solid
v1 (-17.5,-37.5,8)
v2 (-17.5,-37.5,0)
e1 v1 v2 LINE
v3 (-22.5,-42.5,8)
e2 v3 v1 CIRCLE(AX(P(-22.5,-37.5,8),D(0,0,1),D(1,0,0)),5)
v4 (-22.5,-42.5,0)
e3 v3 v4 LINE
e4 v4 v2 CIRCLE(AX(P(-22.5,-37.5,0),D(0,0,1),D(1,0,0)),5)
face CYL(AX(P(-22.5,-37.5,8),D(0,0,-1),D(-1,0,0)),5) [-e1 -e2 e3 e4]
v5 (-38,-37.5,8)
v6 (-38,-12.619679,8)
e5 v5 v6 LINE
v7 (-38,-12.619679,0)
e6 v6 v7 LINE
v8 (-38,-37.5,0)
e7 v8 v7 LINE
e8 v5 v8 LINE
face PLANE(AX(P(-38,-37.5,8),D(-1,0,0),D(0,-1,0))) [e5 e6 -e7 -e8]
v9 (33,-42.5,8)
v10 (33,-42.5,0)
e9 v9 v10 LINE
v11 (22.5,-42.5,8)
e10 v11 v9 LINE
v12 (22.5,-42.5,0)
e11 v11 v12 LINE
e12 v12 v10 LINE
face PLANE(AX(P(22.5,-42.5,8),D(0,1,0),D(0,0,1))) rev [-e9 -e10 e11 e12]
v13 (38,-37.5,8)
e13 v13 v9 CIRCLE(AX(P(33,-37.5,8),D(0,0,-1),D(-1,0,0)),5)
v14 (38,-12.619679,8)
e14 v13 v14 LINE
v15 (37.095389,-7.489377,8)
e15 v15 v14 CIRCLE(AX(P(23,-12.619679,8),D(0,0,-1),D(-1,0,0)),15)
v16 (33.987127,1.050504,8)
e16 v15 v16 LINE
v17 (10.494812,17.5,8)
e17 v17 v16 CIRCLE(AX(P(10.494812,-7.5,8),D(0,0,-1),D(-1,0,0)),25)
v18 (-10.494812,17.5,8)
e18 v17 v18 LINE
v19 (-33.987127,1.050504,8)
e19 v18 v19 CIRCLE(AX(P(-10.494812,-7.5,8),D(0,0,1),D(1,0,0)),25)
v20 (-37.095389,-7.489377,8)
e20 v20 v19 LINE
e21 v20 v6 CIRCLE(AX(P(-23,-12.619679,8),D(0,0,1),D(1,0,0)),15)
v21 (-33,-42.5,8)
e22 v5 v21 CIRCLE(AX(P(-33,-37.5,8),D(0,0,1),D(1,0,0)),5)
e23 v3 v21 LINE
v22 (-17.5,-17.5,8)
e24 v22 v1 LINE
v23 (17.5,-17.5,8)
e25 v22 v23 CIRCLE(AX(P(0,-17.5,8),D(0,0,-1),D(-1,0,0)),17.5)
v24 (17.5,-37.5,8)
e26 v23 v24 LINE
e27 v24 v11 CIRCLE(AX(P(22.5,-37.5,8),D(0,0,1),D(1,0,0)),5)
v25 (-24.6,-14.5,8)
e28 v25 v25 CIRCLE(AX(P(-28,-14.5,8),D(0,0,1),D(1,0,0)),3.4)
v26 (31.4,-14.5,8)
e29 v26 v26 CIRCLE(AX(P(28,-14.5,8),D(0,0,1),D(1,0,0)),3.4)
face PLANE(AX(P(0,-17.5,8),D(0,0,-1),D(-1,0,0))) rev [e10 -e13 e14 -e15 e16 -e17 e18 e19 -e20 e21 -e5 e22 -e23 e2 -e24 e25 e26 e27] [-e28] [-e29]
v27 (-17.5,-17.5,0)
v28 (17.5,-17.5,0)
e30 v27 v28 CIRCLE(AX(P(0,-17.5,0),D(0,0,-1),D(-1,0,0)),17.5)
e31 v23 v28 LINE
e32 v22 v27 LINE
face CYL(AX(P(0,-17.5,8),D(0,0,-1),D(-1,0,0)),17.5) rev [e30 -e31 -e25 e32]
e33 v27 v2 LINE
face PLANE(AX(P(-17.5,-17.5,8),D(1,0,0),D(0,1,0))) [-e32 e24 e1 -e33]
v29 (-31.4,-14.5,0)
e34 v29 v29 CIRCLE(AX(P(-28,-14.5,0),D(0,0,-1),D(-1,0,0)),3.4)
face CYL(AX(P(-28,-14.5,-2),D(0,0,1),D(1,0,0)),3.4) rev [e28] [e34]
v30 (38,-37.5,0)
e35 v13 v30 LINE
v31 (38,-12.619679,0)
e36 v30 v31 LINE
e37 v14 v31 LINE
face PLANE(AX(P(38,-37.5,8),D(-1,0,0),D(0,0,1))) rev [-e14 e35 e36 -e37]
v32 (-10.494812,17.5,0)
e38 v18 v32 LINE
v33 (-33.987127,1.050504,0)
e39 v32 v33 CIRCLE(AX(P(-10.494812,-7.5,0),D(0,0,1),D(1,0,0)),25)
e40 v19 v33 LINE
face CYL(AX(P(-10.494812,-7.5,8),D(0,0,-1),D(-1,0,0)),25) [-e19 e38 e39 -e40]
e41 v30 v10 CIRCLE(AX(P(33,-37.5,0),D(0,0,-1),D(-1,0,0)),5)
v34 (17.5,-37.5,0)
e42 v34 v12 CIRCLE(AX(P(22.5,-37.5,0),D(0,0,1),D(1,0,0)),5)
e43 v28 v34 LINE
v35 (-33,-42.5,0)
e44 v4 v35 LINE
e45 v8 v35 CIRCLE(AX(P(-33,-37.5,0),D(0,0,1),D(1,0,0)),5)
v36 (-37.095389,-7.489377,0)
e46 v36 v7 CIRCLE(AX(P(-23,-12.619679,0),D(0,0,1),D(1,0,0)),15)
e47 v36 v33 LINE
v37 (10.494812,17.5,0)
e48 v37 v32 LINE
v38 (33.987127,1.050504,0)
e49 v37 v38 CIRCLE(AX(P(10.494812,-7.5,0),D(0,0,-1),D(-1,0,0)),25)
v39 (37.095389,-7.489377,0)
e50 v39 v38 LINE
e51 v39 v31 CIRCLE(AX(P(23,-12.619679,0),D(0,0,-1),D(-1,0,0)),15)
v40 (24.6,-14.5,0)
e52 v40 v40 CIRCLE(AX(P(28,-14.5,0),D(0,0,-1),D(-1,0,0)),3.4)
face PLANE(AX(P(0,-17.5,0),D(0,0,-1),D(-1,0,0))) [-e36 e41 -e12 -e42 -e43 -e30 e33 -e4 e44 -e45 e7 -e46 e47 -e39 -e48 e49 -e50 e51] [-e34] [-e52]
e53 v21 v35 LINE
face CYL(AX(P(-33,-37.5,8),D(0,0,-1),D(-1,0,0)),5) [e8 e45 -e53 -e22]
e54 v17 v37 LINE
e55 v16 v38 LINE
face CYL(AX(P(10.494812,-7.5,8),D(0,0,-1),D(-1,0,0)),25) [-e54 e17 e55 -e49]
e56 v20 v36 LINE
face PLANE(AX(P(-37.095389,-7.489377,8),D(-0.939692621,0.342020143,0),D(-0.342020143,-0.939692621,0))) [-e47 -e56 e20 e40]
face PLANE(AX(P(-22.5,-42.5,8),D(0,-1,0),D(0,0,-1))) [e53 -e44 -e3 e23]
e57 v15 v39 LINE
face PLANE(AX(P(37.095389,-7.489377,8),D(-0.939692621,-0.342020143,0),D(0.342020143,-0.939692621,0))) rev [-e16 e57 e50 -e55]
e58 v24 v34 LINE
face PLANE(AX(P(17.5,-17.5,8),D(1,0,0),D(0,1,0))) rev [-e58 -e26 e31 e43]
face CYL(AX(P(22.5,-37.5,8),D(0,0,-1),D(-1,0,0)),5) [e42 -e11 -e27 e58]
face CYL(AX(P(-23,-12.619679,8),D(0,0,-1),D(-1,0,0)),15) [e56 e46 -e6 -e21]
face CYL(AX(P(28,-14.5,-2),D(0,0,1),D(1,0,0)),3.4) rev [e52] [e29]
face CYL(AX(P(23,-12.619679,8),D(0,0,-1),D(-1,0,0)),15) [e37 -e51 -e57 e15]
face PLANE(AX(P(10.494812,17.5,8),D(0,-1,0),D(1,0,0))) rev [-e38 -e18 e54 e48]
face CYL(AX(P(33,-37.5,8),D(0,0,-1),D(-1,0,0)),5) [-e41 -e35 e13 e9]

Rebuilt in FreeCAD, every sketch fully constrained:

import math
import FreeCAD as App
import Part
import Sketcher
from FreeCAD import Vector
Q = App.Units.Quantity

doc = App.newDocument("Part")
body = doc.addObject("PartDesign::Body", "Body")

sketch1 = body.newObject("Sketcher::SketchObject", "Sketch")
sketch1.AttachmentSupport = (doc.getObject("XY_Plane"), [""])
sketch1.MapMode = "FlatFace"
sketch1.addGeometry([
    Part.LineSegment(Vector(18, -18, 0), Vector(18, -38, 0)),
    Part.ArcOfCircle(Part.Circle(Vector(22, -38, 0), Vector(0, 0, 1), 5), math.radians(180), math.radians(270)),
    Part.LineSegment(Vector(22, -42, 0), Vector(33, -42, 0)),
    Part.ArcOfCircle(Part.Circle(Vector(33, -38, 0), Vector(0, 0, 1), 5), math.radians(-90), math.radians(0)),
    Part.LineSegment(Vector(38, -38, 0), Vector(38, -13, 0)),
    Part.ArcOfCircle(Part.Circle(Vector(23, -13, 0), Vector(0, 0, 1), 15), math.radians(0), math.radians(20)),
    Part.LineSegment(Vector(37, -7, 0), Vector(34, 1, 0)),
    Part.ArcOfCircle(Part.Circle(Vector(10, -7, 0), Vector(0, 0, 1), 25), math.radians(20), math.radians(90)),
    Part.LineSegment(Vector(10, 18, 0), Vector(-10, 18, 0)),
    Part.ArcOfCircle(Part.Circle(Vector(-10, -7, 0), Vector(0, 0, 1), 25), math.radians(90), math.radians(160)),
    Part.LineSegment(Vector(-34, 1, 0), Vector(-37, -7, 0)),
    Part.ArcOfCircle(Part.Circle(Vector(-23, -13, 0), Vector(0, 0, 1), 15), math.radians(160), math.radians(180)),
    Part.LineSegment(Vector(-38, -13, 0), Vector(-38, -38, 0)),
    Part.ArcOfCircle(Part.Circle(Vector(-33, -38, 0), Vector(0, 0, 1), 5), math.radians(180), math.radians(270)),
    Part.LineSegment(Vector(-33, -42, 0), Vector(-22, -42, 0)),
    Part.ArcOfCircle(Part.Circle(Vector(-22, -38, 0), Vector(0, 0, 1), 5), math.radians(-90), math.radians(0)),
    Part.LineSegment(Vector(-18, -38, 0), Vector(-18, -18, 0)),
    Part.ArcOfCircle(Part.Circle(Vector(0, -18, 0), Vector(0, 0, 1), 18), math.radians(0), math.radians(180)),
], False)
sketch1.addConstraint([
    Sketcher.Constraint("Tangent", 0, 2, 1, 1),
    Sketcher.Constraint("Tangent", 1, 2, 2, 1),
    Sketcher.Constraint("Tangent", 2, 2, 3, 1),
    Sketcher.Constraint("Tangent", 3, 2, 4, 1),
    Sketcher.Constraint("Tangent", 4, 2, 5, 1),
    Sketcher.Constraint("Tangent", 5, 2, 6, 1),
    Sketcher.Constraint("Tangent", 6, 2, 7, 1),
    Sketcher.Constraint("Tangent", 7, 2, 8, 1),
    Sketcher.Constraint("Tangent", 8, 2, 9, 1),
    Sketcher.Constraint("Tangent", 9, 2, 10, 1),
    Sketcher.Constraint("Tangent", 10, 2, 11, 1),
    Sketcher.Constraint("Tangent", 11, 2, 12, 1),
    Sketcher.Constraint("Tangent", 12, 2, 13, 1),
    Sketcher.Constraint("Tangent", 13, 2, 14, 1),
    Sketcher.Constraint("Tangent", 14, 2, 15, 1),
    Sketcher.Constraint("Tangent", 15, 2, 16, 1),
    Sketcher.Constraint("Tangent", 16, 2, 17, 2),
    Sketcher.Constraint("Tangent", 17, 1, 0, 1),
    Sketcher.Constraint("Vertical", 0),
    Sketcher.Constraint("Horizontal", 2),
    Sketcher.Constraint("Vertical", 4),
    Sketcher.Constraint("Horizontal", 8),
    Sketcher.Constraint("Vertical", 12),
    Sketcher.Constraint("Horizontal", 14),
    Sketcher.Constraint("Vertical", 16),
    Sketcher.Constraint("Equal", 1, 3),
    Sketcher.Constraint("Equal", 7, 9),
    Sketcher.Constraint("Equal", 5, 11),
    Sketcher.Constraint("Equal", 3, 13),
    Sketcher.Constraint("Equal", 13, 15),
    Sketcher.Constraint("Symmetric", 5, 3, 11, 3, -2),
    Sketcher.Constraint("Symmetric", 1, 3, 15, 3, -2),
    Sketcher.Constraint("Horizontal", 6, 2, 9, 2),
    Sketcher.Constraint("Radius", 1, 5.0),
    Sketcher.Constraint("Radius", 5, 15.0),
    Sketcher.Constraint("Radius", 7, 25.0),
    Sketcher.Constraint("Radius", 17, 17.5),
    Sketcher.Constraint("DistanceY", 0, 2, 0, 1, 20.0),
    Sketcher.Constraint("Angle", 6, Q("110 deg")),
    Sketcher.Constraint("DistanceX", 2, 1, 2, 2, 10.5),
    Sketcher.Constraint("DistanceY", 1, 3, 7, 3, 30.0),
    Sketcher.Constraint("DistanceY", 1, 3, -1, 1, 37.5),
    Sketcher.Constraint("DistanceY", 4, 1, 4, 2, 24.880321),
])
pad1 = body.newObject("PartDesign::Pad", "Pad")
pad1.Profile = sketch1
pad1.Length = 8

sketch2 = body.newObject("Sketcher::SketchObject", "Sketch001")
sketch2.AttachmentSupport = (doc.getObject("XY_Plane"), [""])
sketch2.MapMode = "FlatFace"
sketch2.AttachmentOffset = App.Placement(Vector(0, 0, 8), App.Rotation())
sketch2.addGeometry([
    Part.Circle(Vector(-28, -14.5, 0), Vector(0, 0, 1), 3.4),
    Part.Circle(Vector(28, -14.5, 0), Vector(0, 0, 1), 3.4),
], False)
sketch2.addConstraint([
    Sketcher.Constraint("Equal", 0, 1),
    Sketcher.Constraint("Symmetric", 0, 3, 1, 3, -2),
    Sketcher.Constraint("Diameter", 0, 6.8),
    Sketcher.Constraint("DistanceX", 0, 3, -1, 1, 28.0),
    Sketcher.Constraint("DistanceY", 0, 3, -1, 1, 14.5),
])
pocket1 = body.newObject("PartDesign::Pocket", "Pocket")
pocket1.Profile = sketch2
pocket1.Length = 10

doc.recompute()
